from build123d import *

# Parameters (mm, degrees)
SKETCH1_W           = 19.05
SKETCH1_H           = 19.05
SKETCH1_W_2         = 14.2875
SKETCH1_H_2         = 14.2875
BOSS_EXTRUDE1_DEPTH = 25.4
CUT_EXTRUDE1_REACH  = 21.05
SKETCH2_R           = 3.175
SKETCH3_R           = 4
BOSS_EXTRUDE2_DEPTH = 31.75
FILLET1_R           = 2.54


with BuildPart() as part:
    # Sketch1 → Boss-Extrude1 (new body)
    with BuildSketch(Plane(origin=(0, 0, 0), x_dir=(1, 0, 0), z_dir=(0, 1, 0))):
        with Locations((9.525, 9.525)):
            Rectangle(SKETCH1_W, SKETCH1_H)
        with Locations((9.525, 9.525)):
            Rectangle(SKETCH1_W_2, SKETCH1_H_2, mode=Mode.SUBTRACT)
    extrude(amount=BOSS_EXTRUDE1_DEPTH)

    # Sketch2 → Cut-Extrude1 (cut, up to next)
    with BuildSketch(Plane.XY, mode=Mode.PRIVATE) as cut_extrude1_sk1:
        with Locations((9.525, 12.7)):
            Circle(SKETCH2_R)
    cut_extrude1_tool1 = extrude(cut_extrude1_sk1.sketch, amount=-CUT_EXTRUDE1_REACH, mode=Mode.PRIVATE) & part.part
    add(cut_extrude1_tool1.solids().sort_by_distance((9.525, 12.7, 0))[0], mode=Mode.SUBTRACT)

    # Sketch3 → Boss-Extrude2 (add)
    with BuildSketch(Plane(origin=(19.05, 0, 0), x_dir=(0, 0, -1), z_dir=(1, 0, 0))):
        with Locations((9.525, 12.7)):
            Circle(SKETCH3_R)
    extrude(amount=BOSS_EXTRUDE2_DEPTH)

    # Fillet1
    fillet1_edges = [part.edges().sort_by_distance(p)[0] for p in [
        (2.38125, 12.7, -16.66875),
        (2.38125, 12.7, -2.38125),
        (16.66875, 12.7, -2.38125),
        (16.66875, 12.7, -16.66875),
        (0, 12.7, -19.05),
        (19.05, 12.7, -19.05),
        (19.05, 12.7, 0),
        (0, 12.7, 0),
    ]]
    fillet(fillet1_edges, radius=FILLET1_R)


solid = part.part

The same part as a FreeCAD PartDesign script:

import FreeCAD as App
import Part
import Sketcher

V = App.Vector
Q = App.Units.Quantity


def edges_at(feature, points):
    """Names of the edges that pass closest to the given points."""
    edges = feature.Shape.Edges
    near = lambda p: min(range(len(edges)), key=lambda i: edges[i].distToShape(Part.Vertex(*p))[0])
    return sorted({f"Edge{near(p) + 1}" for p in points})

doc = App.newDocument("Part")
body = doc.addObject("PartDesign::Body", "Body")

sketch1 = doc.addObject("Sketcher::SketchObject", "Sketch")
body.addObject(sketch1)
sketch1.AttachmentSupport = (doc.XZ_Plane, [""])
sketch1.MapMode = "FlatFace"
sketch1.addGeometry(Part.LineSegment(V(0, -19, 0), V(0, 0, 0)), False)
sketch1.addGeometry(Part.LineSegment(V(0, 0, 0), V(19, 0, 0)), False)
sketch1.addGeometry(Part.LineSegment(V(19, 0, 0), V(19, -19, 0)), False)
sketch1.addGeometry(Part.LineSegment(V(19, -19, 0), V(0, -19, 0)), False)
sketch1.addGeometry(Part.LineSegment(V(17, -2, 0), V(2, -2, 0)), False)
sketch1.addGeometry(Part.LineSegment(V(2, -2, 0), V(2, -17, 0)), False)
sketch1.addGeometry(Part.LineSegment(V(2, -17, 0), V(17, -17, 0)), False)
sketch1.addGeometry(Part.LineSegment(V(17, -17, 0), V(17, -2, 0)), False)
sketch1.addConstraint(Sketcher.Constraint("Coincident", 0, 2, 1, 1))
sketch1.addConstraint(Sketcher.Constraint("Coincident", 1, 2, 2, 1))
sketch1.addConstraint(Sketcher.Constraint("Coincident", 2, 2, 3, 1))
sketch1.addConstraint(Sketcher.Constraint("Coincident", 3, 2, 0, 1))
sketch1.addConstraint(Sketcher.Constraint("Coincident", 4, 2, 5, 1))
sketch1.addConstraint(Sketcher.Constraint("Coincident", 5, 2, 6, 1))
sketch1.addConstraint(Sketcher.Constraint("Coincident", 6, 2, 7, 1))
sketch1.addConstraint(Sketcher.Constraint("Coincident", 7, 2, 4, 1))
sketch1.addConstraint(Sketcher.Constraint("Vertical", 0))
sketch1.addConstraint(Sketcher.Constraint("Horizontal", 1))
sketch1.addConstraint(Sketcher.Constraint("Vertical", 2))
sketch1.addConstraint(Sketcher.Constraint("Horizontal", 3))
sketch1.addConstraint(Sketcher.Constraint("Horizontal", 4))
sketch1.addConstraint(Sketcher.Constraint("Vertical", 5))
sketch1.addConstraint(Sketcher.Constraint("Horizontal", 6))
sketch1.addConstraint(Sketcher.Constraint("Vertical", 7))
sketch1.addConstraint(Sketcher.Constraint("Coincident", 0, 2, -1, 1))
sketch1.addConstraint(Sketcher.Constraint("Equal", 3, 0))
sketch1.addConstraint(Sketcher.Constraint("Equal", 6, 5))
sketch1.addConstraint(Sketcher.Constraint("DistanceX", 1, 1, 1, 2, Q("0.75 in")))
sketch1.addConstraint(Sketcher.Constraint("DistanceX", 4, 2, 4, 1, Q("0.5625 in")))
sketch1.addConstraint(Sketcher.Constraint("DistanceX", -1, 1, 4, 2, Q("0.09375 in")))
sketch1.addConstraint(Sketcher.Constraint("DistanceY", 4, 2, -1, 1, Q("0.09375 in")))
pad1 = doc.addObject("PartDesign::Pad", "Pad")
body.addObject(pad1)
pad1.Profile = sketch1
pad1.Length = Q("1 in")
pad1.Reversed = True

sketch2 = doc.addObject("Sketcher::SketchObject", "Sketch001")
body.addObject(sketch2)
sketch2.AttachmentSupport = (doc.XY_Plane, [""])
sketch2.MapMode = "FlatFace"
sketch2.addGeometry(Part.Circle(V(9.5, 12.7, 0), V(0, 0, 1), 3.2), False)
sketch2.addConstraint(Sketcher.Constraint("Diameter", 0, Q("0.25 in")))
sketch2.addConstraint(Sketcher.Constraint("DistanceY", -1, 1, 0, 3, Q("0.5 in")))
sketch2.addConstraint(Sketcher.Constraint("DistanceX", -1, 1, 0, 3, Q("0.375 in")))
pocket1 = doc.addObject("PartDesign::Pocket", "Pocket")
body.addObject(pocket1)
pocket1.Profile = sketch2
pocket1.Type = "UpToFirst"

sketch3 = doc.addObject("Sketcher::SketchObject", "Sketch002")
body.addObject(sketch3)
sketch3.AttachmentSupport = (doc.YZ_Plane, [""])
sketch3.MapMode = "FlatFace"
sketch3.AttachmentOffset = App.Placement(V(0, 0, 0.75 * 25.4), App.Rotation())
sketch3.addGeometry(Part.Circle(V(12.7, -9.5, 0), V(0, 0, 1), 4), False)
sketch3.addConstraint(Sketcher.Constraint("DistanceX", -1, 1, 0, 3, Q("0.5 in")))
sketch3.addConstraint(Sketcher.Constraint("Diameter", 0, Q("8 mm")))
sketch3.addConstraint(Sketcher.Constraint("DistanceY", 0, 3, -1, 1, Q("0.375 in")))
pad2 = doc.addObject("PartDesign::Pad", "Pad001")
body.addObject(pad2)
pad2.Profile = sketch3
pad2.Length = Q("1.25 in")
doc.recompute()

fillet = doc.addObject("PartDesign::Fillet", "Fillet")
body.addObject(fillet)
fillet.Base = (pad2, edges_at(pad2, [
    (2.381, 12.7, -16.669),
    (2.381, 12.7, -2.381),
    (16.669, 12.7, -2.381),
    (16.669, 12.7, -16.669),
    (0, 12.7, -19.05),
    (19.05, 12.7, -19.05),
    (19.05, 12.7, 0),
    (0, 12.7, 0),
]))
fillet.Radius = Q("0.1 in")

doc.recompute()
